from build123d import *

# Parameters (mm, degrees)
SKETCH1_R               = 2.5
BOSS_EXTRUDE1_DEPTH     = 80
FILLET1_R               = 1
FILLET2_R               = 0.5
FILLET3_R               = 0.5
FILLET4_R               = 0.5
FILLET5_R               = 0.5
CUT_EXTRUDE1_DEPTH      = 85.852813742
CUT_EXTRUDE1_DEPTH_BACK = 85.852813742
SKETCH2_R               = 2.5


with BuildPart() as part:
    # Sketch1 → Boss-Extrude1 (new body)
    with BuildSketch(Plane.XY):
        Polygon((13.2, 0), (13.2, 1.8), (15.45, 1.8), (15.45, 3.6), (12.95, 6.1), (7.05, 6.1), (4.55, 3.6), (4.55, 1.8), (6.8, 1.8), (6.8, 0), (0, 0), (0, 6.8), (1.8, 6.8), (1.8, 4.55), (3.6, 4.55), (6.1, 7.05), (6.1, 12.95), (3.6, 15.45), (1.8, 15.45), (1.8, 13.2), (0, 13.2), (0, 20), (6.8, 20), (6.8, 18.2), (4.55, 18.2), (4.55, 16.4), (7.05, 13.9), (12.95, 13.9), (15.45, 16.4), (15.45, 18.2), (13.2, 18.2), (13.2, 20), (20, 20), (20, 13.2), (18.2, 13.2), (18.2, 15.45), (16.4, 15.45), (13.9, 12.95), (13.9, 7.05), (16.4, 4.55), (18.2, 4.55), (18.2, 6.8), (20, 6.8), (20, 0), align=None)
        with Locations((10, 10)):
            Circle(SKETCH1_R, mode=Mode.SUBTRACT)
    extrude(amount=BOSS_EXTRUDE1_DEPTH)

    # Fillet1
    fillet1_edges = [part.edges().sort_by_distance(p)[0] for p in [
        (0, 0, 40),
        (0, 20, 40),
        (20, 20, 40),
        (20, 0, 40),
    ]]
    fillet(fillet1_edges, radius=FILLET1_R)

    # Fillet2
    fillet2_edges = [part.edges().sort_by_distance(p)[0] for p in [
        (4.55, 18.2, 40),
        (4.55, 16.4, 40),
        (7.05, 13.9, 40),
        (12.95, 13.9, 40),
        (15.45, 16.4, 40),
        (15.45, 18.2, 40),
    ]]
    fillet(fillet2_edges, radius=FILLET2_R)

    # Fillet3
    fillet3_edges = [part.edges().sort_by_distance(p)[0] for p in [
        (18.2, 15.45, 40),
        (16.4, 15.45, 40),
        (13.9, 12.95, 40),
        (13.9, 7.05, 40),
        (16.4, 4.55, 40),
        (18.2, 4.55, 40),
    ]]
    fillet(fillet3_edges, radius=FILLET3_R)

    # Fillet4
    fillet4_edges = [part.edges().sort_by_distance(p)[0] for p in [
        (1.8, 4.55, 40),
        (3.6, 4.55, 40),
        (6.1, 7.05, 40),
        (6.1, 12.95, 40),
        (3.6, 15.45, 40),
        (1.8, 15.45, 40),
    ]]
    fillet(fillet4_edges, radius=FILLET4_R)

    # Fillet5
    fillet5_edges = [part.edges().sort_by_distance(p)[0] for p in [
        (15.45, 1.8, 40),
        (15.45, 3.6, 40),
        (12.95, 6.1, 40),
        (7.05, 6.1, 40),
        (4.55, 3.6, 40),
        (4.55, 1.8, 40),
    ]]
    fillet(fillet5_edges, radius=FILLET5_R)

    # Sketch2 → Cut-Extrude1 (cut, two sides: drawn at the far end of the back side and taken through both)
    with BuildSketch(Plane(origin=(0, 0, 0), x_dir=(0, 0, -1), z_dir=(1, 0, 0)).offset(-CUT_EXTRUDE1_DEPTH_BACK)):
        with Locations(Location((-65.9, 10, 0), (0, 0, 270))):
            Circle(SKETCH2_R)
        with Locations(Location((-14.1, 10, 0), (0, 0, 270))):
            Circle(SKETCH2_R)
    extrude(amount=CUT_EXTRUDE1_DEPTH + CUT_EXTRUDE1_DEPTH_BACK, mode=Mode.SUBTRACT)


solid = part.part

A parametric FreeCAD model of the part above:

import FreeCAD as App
import Part
import Sketcher


def edges_at(feature, points):
    """Names of the edges that pass closest to the given points."""
    edges = feature.Shape.Edges
    near = lambda p: min(range(len(edges)), key=lambda i: edges[i].distToShape(Part.Vertex(*p))[0])
    return sorted({f"Edge{near(p) + 1}" for p in points})


def add_polygon(sketch, points):
    """Adds a closed chain of lines whose ends are joined by coincident constraints."""
    first, n = sketch.GeometryCount, len(points)
    for a, b in zip(points, points[1:] + points[:1]):
        sketch.addGeometry(Part.LineSegment(App.Vector(*a, 0), App.Vector(*b, 0)), False)
    for i in range(n):
        sketch.addConstraint(Sketcher.Constraint("Coincident", first + i, 2, first + (i + 1) % n, 1))

doc = App.newDocument("Part")
params = doc.addObject("Spreadsheet::Sheet", "Params")
for row, (alias, value) in enumerate([
    ("sketch1_diameter", "5 mm"),
    ("sketch1_width", "6.8 mm"),
    ("sketch1_width2", "1.8 mm"),
    ("sketch1_width3", "5.9 mm"),
    ("sketch1_width4", "2.25 mm"),
    ("pad1_length", "80 mm"),
    ("fillet_radius", "1 mm"),
    ("fillet2_radius", "0.5 mm"),
    ("fillet3_radius", "0.5 mm"),
    ("fillet4_radius", "0.5 mm"),
    ("fillet5_radius", "0.5 mm"),
    ("sketch2_diameter", "5 mm"),
], start=1):
    params.set(f"A{row}", alias)
    params.set(f"B{row}", "=" + value)
    params.setAlias(f"B{row}", alias)

body = doc.addObject("PartDesign::Body", "Body")

# Sketch on XY plane
sketch1 = doc.addObject("Sketcher::SketchObject", "Sketch")
body.addObject(sketch1)
sketch1.AttachmentSupport = (doc.XY_Plane, [""])
sketch1.MapMode = "FlatFace"
add_polygon(sketch1, [(13.2, 1.8), (13.2, 0), (20, 0), (20, 6.8), (18.2, 6.8), (18.2, 4.5), (16.4, 4.5), (13.9, 7), (13.9, 12.9), (16.4, 15.4), (18.2, 15.4), (18.2, 13.2), (20, 13.2), (20, 20), (13.2, 20), (13.2, 18.2), (15.4, 18.2), (15.4, 16.4), (12.9, 13.9), (7, 13.9), (4.5, 16.4), (4.5, 18.2), (6.8, 18.2), (6.8, 20), (0, 20), (0, 13.2), (1.8, 13.2), (1.8, 15.4), (3.6, 15.4), (6.1, 12.9), (6.1, 7), (3.6, 4.5), (1.8, 4.5), (1.8, 6.8), (0, 6.8), (0, 0), (6.8, 0), (6.8, 1.8), (4.5, 1.8), (4.5, 3.6), (7, 6.1), (12.9, 6.1), (15.4, 3.6), (15.4, 1.8)])  # lines 0-43
sketch1.addGeometry(Part.Circle(App.Vector(10, 10, 0), App.Vector(0, 0, 1), 2.5), False)  # 44
sketch1.addConstraint([
    Sketcher.Constraint("Vertical", 0),
    Sketcher.Constraint("Horizontal", 1),
    Sketcher.Constraint("Vertical", 2),
    Sketcher.Constraint("Horizontal", 3),
    Sketcher.Constraint("Vertical", 4),
    Sketcher.Constraint("Horizontal", 5),
    Sketcher.Constraint("Vertical", 7),
    Sketcher.Constraint("Horizontal", 9),
    Sketcher.Constraint("Vertical", 10),
    Sketcher.Constraint("Horizontal", 11),
    Sketcher.Constraint("Vertical", 12),
    Sketcher.Constraint("Horizontal", 13),
    Sketcher.Constraint("Vertical", 14),
    Sketcher.Constraint("Horizontal", 15),
    Sketcher.Constraint("Vertical", 16),
    Sketcher.Constraint("Horizontal", 18),
    Sketcher.Constraint("Vertical", 20),
    Sketcher.Constraint("Horizontal", 21),
    Sketcher.Constraint("Vertical", 22),
    Sketcher.Constraint("Horizontal", 23),
    Sketcher.Constraint("Vertical", 24),
    Sketcher.Constraint("Horizontal", 25),
    Sketcher.Constraint("Vertical", 26),
    Sketcher.Constraint("Horizontal", 27),
    Sketcher.Constraint("Vertical", 29),
    Sketcher.Constraint("Horizontal", 31),
    Sketcher.Constraint("Vertical", 32),
    Sketcher.Constraint("Horizontal", 33),
    Sketcher.Constraint("Vertical", 34),
    Sketcher.Constraint("Horizontal", 35),
    Sketcher.Constraint("Vertical", 36),
    Sketcher.Constraint("Horizontal", 37),
    Sketcher.Constraint("Vertical", 38),
    Sketcher.Constraint("Horizontal", 40),
    Sketcher.Constraint("Vertical", 42),
    Sketcher.Constraint("Horizontal", 43),
    Sketcher.Constraint("Coincident", 34, 2, -1, 1),
    Sketcher.Constraint("PointOnObject", 0, 2, -1),
    Sketcher.Constraint("PointOnObject", 23, 2, -2),
    Sketcher.Constraint("Perpendicular", 6, 8),
    Sketcher.Constraint("Parallel", 8, 17),
    Sketcher.Constraint("Perpendicular", 17, 19),
    Sketcher.Constraint("Parallel", 19, 28),
    Sketcher.Constraint("Perpendicular", 28, 30),
    Sketcher.Constraint("Parallel", 30, 39),
    Sketcher.Constraint("Perpendicular", 39, 41),
    Sketcher.Constraint("Horizontal", 16, 2, 19, 2),
    Sketcher.Constraint("Horizontal", 15, 2, 20, 2),
    Sketcher.Constraint("Horizontal", 13, 2, 22, 2),
    Sketcher.Constraint("Horizontal", 11, 2, 24, 2),
    Sketcher.Constraint("Horizontal", 9, 2, 26, 2),
    Sketcher.Constraint("Horizontal", 7, 2, 28, 2),
    Sketcher.Constraint("Horizontal", 6, 2, 29, 2),
    Sketcher.Constraint("Horizontal", 5, 2, 30, 2),
    Sketcher.Constraint("Horizontal", 3, 2, 32, 2),
    Sketcher.Constraint("Horizontal", 38, 2, 41, 2),
    Sketcher.Constraint("Horizontal", 37, 2, 42, 2),
    Sketcher.Constraint("Vertical", 5, 2, 8, 2),
    Sketcher.Constraint("Vertical", 4, 2, 9, 2),
    Sketcher.Constraint("Vertical", 2, 2, 11, 2),
    Sketcher.Constraint("Vertical", 0, 2, 13, 2),
    Sketcher.Constraint("Vertical", 27, 2, 30, 2),
    Sketcher.Constraint("Vertical", 26, 2, 31, 2),
    Sketcher.Constraint("Vertical", 22, 2, 35, 2),
    Sketcher.Constraint("Vertical", 20, 2, 37, 2),
    Sketcher.Constraint("Vertical", 18, 2, 39, 2),
    Sketcher.Constraint("Vertical", 17, 2, 40, 2),
    Sketcher.Constraint("Equal", 3, 5),
    Sketcher.Constraint("Equal", 15, 21),
    Sketcher.Constraint("Equal", 13, 23),
    Sketcher.Constraint("Equal", 11, 25),
    Sketcher.Constraint("Equal", 25, 27),
    Sketcher.Constraint("Equal", 33, 0),
    Sketcher.Constraint("Equal", 35, 2),
    Sketcher.Constraint("Equal", 43, 4),
    Sketcher.Constraint("Equal", 40, 7),
    Sketcher.Constraint("Equal", 4, 10),
    Sketcher.Constraint("Equal", 2, 12),
    Sketcher.Constraint("Equal", 0, 14),
    Sketcher.Constraint("Equal", 14, 16),
    Sketcher.Constraint("Equal", 36, 38),
    Sketcher.Constraint("Equal", 8, 17),
    Sketcher.Constraint("Diameter", 44, 5.0),
    Sketcher.Constraint("DistanceX", 1, 1, 1, 2, 6.8),
    Sketcher.Constraint("DistanceX", 3, 2, 3, 1, 1.8),
    Sketcher.Constraint("DistanceX", 18, 2, 18, 1, 5.9),
    Sketcher.Constraint("DistanceX", -1, 1, 44, 3, 10.0),
    Sketcher.Constraint("DistanceY", -1, 1, 44, 3, 10.0),
    Sketcher.Constraint("DistanceX", -1, 1, 1, 2, 20.0),
    Sketcher.Constraint("DistanceX", 15, 1, 15, 2, 2.25),
])
sketch1.setExpression("Constraints[126]", "Params.sketch1_diameter")
sketch1.setExpression("Constraints[127]", "Params.sketch1_width")
sketch1.setExpression("Constraints[128]", "Params.sketch1_width2")
sketch1.setExpression("Constraints[129]", "Params.sketch1_width3")
sketch1.setExpression("Constraints[133]", "Params.sketch1_width4")
pad1 = doc.addObject("PartDesign::Pad", "Pad")
body.addObject(pad1)
pad1.Profile = sketch1
pad1.setExpression("Length", "Params.pad1_length")
doc.recompute()

fillet = doc.addObject("PartDesign::Fillet", "Fillet")
body.addObject(fillet)
fillet.Base = (pad1, edges_at(pad1, [
    (0, 0, 40),
    (0, 20, 40),
    (20, 20, 40),
    (20, 0, 40),
]))
fillet.setExpression("Radius", "Params.fillet_radius")
doc.recompute()

fillet2 = doc.addObject("PartDesign::Fillet", "Fillet001")
body.addObject(fillet2)
fillet2.Base = (fillet, edges_at(fillet, [
    (4.55, 18.2, 40),
    (4.55, 16.4, 40),
    (7.05, 13.9, 40),
    (12.95, 13.9, 40),
    (15.45, 16.4, 40),
    (15.45, 18.2, 40),
]))
fillet2.setExpression("Radius", "Params.fillet2_radius")
doc.recompute()

fillet3 = doc.addObject("PartDesign::Fillet", "Fillet002")
body.addObject(fillet3)
fillet3.Base = (fillet2, edges_at(fillet2, [
    (18.2, 15.45, 40),
    (16.4, 15.45, 40),
    (13.9, 12.95, 40),
    (13.9, 7.05, 40),
    (16.4, 4.55, 40),
    (18.2, 4.55, 40),
]))
fillet3.setExpression("Radius", "Params.fillet3_radius")
doc.recompute()

fillet4 = doc.addObject("PartDesign::Fillet", "Fillet003")
body.addObject(fillet4)
fillet4.Base = (fillet3, edges_at(fillet3, [
    (1.8, 4.55, 40),
    (3.6, 4.55, 40),
    (6.1, 7.05, 40),
    (6.1, 12.95, 40),
    (3.6, 15.45, 40),
    (1.8, 15.45, 40),
]))
fillet4.setExpression("Radius", "Params.fillet4_radius")
doc.recompute()

fillet5 = doc.addObject("PartDesign::Fillet", "Fillet004")
body.addObject(fillet5)
fillet5.Base = (fillet4, edges_at(fillet4, [
    (15.45, 1.8, 40),
    (15.45, 3.6, 40),
    (12.95, 6.1, 40),
    (7.05, 6.1, 40),
    (4.55, 3.6, 40),
    (4.55, 1.8, 40),
]))
fillet5.setExpression("Radius", "Params.fillet5_radius")

# Sketch on YZ plane
sketch2 = doc.addObject("Sketcher::SketchObject", "Sketch001")
body.addObject(sketch2)
sketch2.AttachmentSupport = (doc.YZ_Plane, [""])
sketch2.MapMode = "FlatFace"
sketch2.addGeometry([
    Part.Circle(App.Vector(10, 65.9, 0), App.Vector(0, 0, 1), 2.5),
    Part.Circle(App.Vector(10, 14.1, 0), App.Vector(0, 0, 1), 2.5),
], False)
sketch2.addConstraint([
    Sketcher.Constraint("Equal", 0, 1),
    Sketcher.Constraint("Vertical", 0, 3, 1, 3),
    Sketcher.Constraint("Diameter", 0, 5.0),
    Sketcher.Constraint("DistanceX", -1, 1, 0, 3, 10.0),
    Sketcher.Constraint("DistanceY", -1, 1, 0, 3, 65.9),
    Sketcher.Constraint("DistanceY", -1, 1, 1, 3, 14.1),
])
sketch2.setExpression("Constraints[2]", "Params.sketch2_diameter")
pocket1 = doc.addObject("PartDesign::Pocket", "Pocket")
body.addObject(pocket1)
pocket1.Profile = sketch2
pocket1.Type = "ThroughAll"
pocket1.Midplane = True

doc.recompute()
